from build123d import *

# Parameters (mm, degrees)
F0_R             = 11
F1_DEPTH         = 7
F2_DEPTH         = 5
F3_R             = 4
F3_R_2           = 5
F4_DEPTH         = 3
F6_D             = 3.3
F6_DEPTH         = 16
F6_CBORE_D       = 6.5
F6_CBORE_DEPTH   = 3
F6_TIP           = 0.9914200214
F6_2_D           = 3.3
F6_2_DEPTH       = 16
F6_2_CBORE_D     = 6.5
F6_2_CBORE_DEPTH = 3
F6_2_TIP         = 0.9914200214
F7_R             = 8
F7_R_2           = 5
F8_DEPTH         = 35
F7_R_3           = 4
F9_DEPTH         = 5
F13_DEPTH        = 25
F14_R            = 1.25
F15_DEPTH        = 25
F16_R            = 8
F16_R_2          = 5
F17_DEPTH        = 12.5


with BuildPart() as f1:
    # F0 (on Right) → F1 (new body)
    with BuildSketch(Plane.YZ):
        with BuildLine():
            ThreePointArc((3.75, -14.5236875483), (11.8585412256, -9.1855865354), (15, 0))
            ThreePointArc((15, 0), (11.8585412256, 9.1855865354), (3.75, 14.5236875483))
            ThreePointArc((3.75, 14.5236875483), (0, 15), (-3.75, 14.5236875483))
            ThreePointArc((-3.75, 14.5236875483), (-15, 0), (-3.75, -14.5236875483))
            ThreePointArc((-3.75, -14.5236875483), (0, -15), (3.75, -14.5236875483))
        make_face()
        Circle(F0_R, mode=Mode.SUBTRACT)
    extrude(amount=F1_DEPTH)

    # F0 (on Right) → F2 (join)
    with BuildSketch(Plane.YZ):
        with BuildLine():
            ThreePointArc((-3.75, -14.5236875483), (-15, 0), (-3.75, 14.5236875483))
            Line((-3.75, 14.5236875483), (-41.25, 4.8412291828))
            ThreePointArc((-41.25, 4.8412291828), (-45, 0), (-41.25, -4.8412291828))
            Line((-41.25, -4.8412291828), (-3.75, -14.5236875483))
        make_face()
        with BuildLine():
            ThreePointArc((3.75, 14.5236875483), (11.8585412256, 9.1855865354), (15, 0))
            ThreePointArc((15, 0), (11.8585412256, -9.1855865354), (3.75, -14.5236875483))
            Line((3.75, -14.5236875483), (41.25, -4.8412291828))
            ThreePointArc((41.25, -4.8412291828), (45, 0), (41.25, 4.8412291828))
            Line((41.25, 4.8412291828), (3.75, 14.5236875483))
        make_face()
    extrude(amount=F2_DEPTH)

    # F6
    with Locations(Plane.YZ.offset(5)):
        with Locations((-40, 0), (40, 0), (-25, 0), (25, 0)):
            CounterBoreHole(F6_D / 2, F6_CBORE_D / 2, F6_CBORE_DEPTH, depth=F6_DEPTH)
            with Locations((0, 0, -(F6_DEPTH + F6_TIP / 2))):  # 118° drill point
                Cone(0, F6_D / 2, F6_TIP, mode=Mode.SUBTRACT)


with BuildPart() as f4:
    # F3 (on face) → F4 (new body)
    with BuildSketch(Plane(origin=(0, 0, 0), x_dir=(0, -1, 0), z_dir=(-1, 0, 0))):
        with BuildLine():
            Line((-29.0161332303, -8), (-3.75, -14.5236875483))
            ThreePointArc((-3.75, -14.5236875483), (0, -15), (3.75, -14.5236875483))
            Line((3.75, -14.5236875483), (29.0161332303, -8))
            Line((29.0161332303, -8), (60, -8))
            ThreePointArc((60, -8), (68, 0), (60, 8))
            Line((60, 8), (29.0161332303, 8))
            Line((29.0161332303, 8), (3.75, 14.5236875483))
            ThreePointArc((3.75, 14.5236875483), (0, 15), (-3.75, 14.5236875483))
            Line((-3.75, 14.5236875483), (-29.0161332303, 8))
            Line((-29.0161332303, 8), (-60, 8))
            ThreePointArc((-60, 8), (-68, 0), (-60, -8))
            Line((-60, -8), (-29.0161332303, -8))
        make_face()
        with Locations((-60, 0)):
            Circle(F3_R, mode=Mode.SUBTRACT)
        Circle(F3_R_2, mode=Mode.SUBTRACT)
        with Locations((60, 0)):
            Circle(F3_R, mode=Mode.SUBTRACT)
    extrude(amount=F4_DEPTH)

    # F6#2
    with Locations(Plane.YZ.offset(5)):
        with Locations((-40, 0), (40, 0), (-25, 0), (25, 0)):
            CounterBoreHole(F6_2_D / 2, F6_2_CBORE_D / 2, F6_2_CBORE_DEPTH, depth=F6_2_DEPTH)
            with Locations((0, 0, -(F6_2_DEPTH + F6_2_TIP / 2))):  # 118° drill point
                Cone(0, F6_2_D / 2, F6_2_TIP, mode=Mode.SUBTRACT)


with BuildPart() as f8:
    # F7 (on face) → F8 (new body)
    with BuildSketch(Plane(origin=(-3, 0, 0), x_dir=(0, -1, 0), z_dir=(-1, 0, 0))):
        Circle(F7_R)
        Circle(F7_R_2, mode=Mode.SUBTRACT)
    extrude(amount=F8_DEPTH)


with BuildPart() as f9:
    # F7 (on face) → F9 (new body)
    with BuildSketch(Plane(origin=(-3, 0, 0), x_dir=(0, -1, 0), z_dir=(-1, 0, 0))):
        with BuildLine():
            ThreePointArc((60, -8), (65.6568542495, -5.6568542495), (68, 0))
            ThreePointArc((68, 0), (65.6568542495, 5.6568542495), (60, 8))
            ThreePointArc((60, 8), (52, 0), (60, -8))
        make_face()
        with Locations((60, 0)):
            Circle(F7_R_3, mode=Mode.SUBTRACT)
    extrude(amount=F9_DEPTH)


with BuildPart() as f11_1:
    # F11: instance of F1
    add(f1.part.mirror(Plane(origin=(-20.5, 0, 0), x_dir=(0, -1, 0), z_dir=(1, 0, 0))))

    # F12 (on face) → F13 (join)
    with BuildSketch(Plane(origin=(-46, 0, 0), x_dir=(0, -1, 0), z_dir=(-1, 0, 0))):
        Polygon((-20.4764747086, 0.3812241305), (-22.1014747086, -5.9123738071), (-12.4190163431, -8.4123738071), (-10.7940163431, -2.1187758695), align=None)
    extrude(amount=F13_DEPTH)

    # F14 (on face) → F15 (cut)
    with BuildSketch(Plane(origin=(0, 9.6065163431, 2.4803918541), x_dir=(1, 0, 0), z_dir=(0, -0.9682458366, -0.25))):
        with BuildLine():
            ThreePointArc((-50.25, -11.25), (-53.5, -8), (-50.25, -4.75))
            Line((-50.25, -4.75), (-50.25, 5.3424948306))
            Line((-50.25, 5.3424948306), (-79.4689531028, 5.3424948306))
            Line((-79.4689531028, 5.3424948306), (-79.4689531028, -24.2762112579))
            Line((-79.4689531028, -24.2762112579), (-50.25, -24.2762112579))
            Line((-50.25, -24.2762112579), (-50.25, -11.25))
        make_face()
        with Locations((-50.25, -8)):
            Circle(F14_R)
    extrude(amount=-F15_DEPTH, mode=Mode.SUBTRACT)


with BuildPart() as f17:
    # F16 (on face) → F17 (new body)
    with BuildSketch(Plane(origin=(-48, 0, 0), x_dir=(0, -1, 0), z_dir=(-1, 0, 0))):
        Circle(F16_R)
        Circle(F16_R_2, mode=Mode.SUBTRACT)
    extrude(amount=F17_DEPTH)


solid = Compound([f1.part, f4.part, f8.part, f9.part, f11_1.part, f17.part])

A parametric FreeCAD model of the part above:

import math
import FreeCAD as App
import Part
import Sketcher

doc = App.newDocument("Part")
body = doc.addObject("PartDesign::Body", "Body")

# Sketch on YZ plane
sketch1 = body.newObject("Sketcher::SketchObject", "Sketch")
sketch1.AttachmentSupport = (doc.getObject("YZ_Plane"), [""])
sketch1.MapMode = "FlatFace"
sketch1.addGeometry(Part.ArcOfCircle(Part.Circle(App.Vector(0, 0, 0), App.Vector(0, 0, 1), 15), math.radians(-76), math.radians(0)), False)
sketch1.addGeometry(Part.ArcOfCircle(Part.Circle(App.Vector(0, 0, 0), App.Vector(0, 0, 1), 15), math.radians(0), math.radians(76)), False)
sketch1.addGeometry(Part.ArcOfCircle(Part.Circle(App.Vector(0, 0, 0), App.Vector(0, 0, 1), 15), math.radians(76), math.radians(104)), False)
sketch1.addGeometry(Part.ArcOfCircle(Part.Circle(App.Vector(0, 0, 0), App.Vector(0, 0, 1), 15), math.radians(104), math.radians(256)), False)
sketch1.addGeometry(Part.ArcOfCircle(Part.Circle(App.Vector(0, 0, 0), App.Vector(0, 0, 1), 15), math.radians(-104), math.radians(-76)), False)
sketch1.addGeometry(Part.Circle(App.Vector(0, 0, 0), App.Vector(0, 0, 1), 11), False)
sketch1.addConstraint(Sketcher.Constraint("Tangent", 0, 2, 1, 1))
sketch1.addConstraint(Sketcher.Constraint("Tangent", 1, 2, 2, 1))
sketch1.addConstraint(Sketcher.Constraint("Tangent", 2, 2, 3, 1))
sketch1.addConstraint(Sketcher.Constraint("Tangent", 3, 2, 4, 1))
sketch1.addConstraint(Sketcher.Constraint("Tangent", 4, 2, 0, 1))
sketch1.addConstraint(Sketcher.Constraint("Coincident", 0, 3, -1, 1))
sketch1.addConstraint(Sketcher.Constraint("Coincident", 2, 3, -1, 1))
sketch1.addConstraint(Sketcher.Constraint("Coincident", 5, 3, -1, 1))
sketch1.addConstraint(Sketcher.Constraint("PointOnObject", 0, 2, -1))
sketch1.addConstraint(Sketcher.Constraint("Horizontal", 1, 2, 2, 2))
sketch1.addConstraint(Sketcher.Constraint("Horizontal", 3, 2, 4, 2))
sketch1.addConstraint(Sketcher.Constraint("Vertical", 2, 2, 3, 2))
sketch1.addConstraint(Sketcher.Constraint("Diameter", 5, 22.0))
sketch1.addConstraint(Sketcher.Constraint("Radius", 0, 15.0))
sketch1.addConstraint(Sketcher.Constraint("DistanceX", 2, 2, 1, 2, 7.5))
pad1 = body.newObject("PartDesign::Pad", "Pad")
pad1.Profile = sketch1
pad1.Length = 7

# Sketch on YZ plane
sketch2 = body.newObject("Sketcher::SketchObject", "Sketch001")
sketch2.AttachmentSupport = (doc.getObject("YZ_Plane"), [""])
sketch2.MapMode = "FlatFace"
sketch2.addGeometry(Part.ArcOfCircle(Part.Circle(App.Vector(0, 0, 0), App.Vector(0, 0, 1), 15), math.radians(104), math.radians(256)), False)
sketch2.addGeometry(Part.LineSegment(App.Vector(-4, 15, 0), App.Vector(-41, 5, 0)), False)
sketch2.addGeometry(Part.ArcOfCircle(Part.Circle(App.Vector(-40, 0, 0), App.Vector(0, 0, 1), 5), math.radians(104), math.radians(256)), False)
sketch2.addGeometry(Part.LineSegment(App.Vector(-41, -5, 0), App.Vector(-4, -15, 0)), False)
sketch2.addGeometry(Part.ArcOfCircle(Part.Circle(App.Vector(0, 0, 0), App.Vector(0, 0, 1), 15), math.radians(0), math.radians(76)), False)
sketch2.addGeometry(Part.ArcOfCircle(Part.Circle(App.Vector(0, 0, 0), App.Vector(0, 0, 1), 15), math.radians(-76), math.radians(0)), False)
sketch2.addGeometry(Part.LineSegment(App.Vector(4, -15, 0), App.Vector(41, -5, 0)), False)
sketch2.addGeometry(Part.ArcOfCircle(Part.Circle(App.Vector(40, 0, 0), App.Vector(0, 0, 1), 5), math.radians(-76), math.radians(76)), False)
sketch2.addGeometry(Part.LineSegment(App.Vector(41, 5, 0), App.Vector(4, 15, 0)), False)
sketch2.addConstraint(Sketcher.Constraint("Tangent", 0, 1, 1, 1))
sketch2.addConstraint(Sketcher.Constraint("Tangent", 1, 2, 2, 1))
sketch2.addConstraint(Sketcher.Constraint("Tangent", 2, 2, 3, 1))
sketch2.addConstraint(Sketcher.Constraint("Tangent", 3, 2, 0, 2))
sketch2.addConstraint(Sketcher.Constraint("Tangent", 4, 1, 5, 2))
sketch2.addConstraint(Sketcher.Constraint("Tangent", 5, 1, 6, 1))
sketch2.addConstraint(Sketcher.Constraint("Tangent", 6, 2, 7, 1))
sketch2.addConstraint(Sketcher.Constraint("Tangent", 7, 2, 8, 1))
sketch2.addConstraint(Sketcher.Constraint("Tangent", 8, 2, 4, 2))
sketch2.addConstraint(Sketcher.Constraint("Coincident", 0, 3, -1, 1))
sketch2.addConstraint(Sketcher.Constraint("Coincident", 4, 3, -1, 1))
sketch2.addConstraint(Sketcher.Constraint("Equal", 0, 4))
sketch2.addConstraint(Sketcher.Constraint("Equal", 4, 5))
sketch2.addConstraint(Sketcher.Constraint("Equal", 2, 7))
sketch2.addConstraint(Sketcher.Constraint("Symmetric", 2, 3, 7, 3, -1, 1))
sketch2.addConstraint(Sketcher.Constraint("PointOnObject", 2, 3, -1))
sketch2.addConstraint(Sketcher.Constraint("PointOnObject", 4, 1, -1))
sketch2.addConstraint(Sketcher.Constraint("Radius", 0, 15.0))
sketch2.addConstraint(Sketcher.Constraint("Radius", 2, 5.0))
sketch2.addConstraint(Sketcher.Constraint("DistanceX", 2, 3, -1, 1, 40.0))
pad2 = body.newObject("PartDesign::Pad", "Pad001")
pad2.Profile = sketch2
pad2.Length = 5

# Sketch on YZ plane
sketch3 = body.newObject("Sketcher::SketchObject", "Sketch002")
sketch3.AttachmentSupport = (doc.getObject("YZ_Plane"), [""])
sketch3.MapMode = "FlatFace"
sketch3.AttachmentOffset = App.Placement(App.Vector(0, 0, 5), App.Rotation())
sketch3.addGeometry(Part.Circle(App.Vector(-40, 0, 0), App.Vector(0, 0, 1), 1.6), False)
sketch3.addGeometry(Part.Circle(App.Vector(40, 0, 0), App.Vector(0, 0, 1), 1.6), False)
sketch3.addGeometry(Part.Circle(App.Vector(-25, 0, 0), App.Vector(0, 0, 1), 1.6), False)
sketch3.addGeometry(Part.Circle(App.Vector(25, 0, 0), App.Vector(0, 0, 1), 1.6), False)
sketch3.addConstraint(Sketcher.Constraint("Equal", 0, 1))
sketch3.addConstraint(Sketcher.Constraint("Equal", 1, 2))
sketch3.addConstraint(Sketcher.Constraint("Equal", 2, 3))
sketch3.addConstraint(Sketcher.Constraint("Symmetric", 0, 3, 1, 3, -1, 1))
sketch3.addConstraint(Sketcher.Constraint("Symmetric", 2, 3, 3, 3, -1, 1))
sketch3.addConstraint(Sketcher.Constraint("PointOnObject", 0, 3, -1))
sketch3.addConstraint(Sketcher.Constraint("PointOnObject", 2, 3, -1))
sketch3.addConstraint(Sketcher.Constraint("Diameter", 0, 3.3))
sketch3.addConstraint(Sketcher.Constraint("DistanceX", 0, 3, -1, 1, 40.0))
sketch3.addConstraint(Sketcher.Constraint("DistanceX", 2, 3, -1, 1, 25.0))
doc.recompute()
hole = body.newObject("PartDesign::Hole", "Hole")
hole.Profile = sketch3
hole.ThreadType = "None"
hole.Diameter = 3.3
hole.DepthType = "Dimension"
hole.Depth = 16
hole.DrillPoint = "Angled"
hole.DrillPointAngle = 118
hole.HoleCutType = "Counterbore"
hole.HoleCutDiameter = 6.5
hole.HoleCutDepth = 3
body2 = doc.addObject("PartDesign::Body", "Body001")

# Sketch on YZ plane
sketch4 = body2.newObject("Sketcher::SketchObject", "Sketch003")
sketch4.AttachmentSupport = (doc.getObject("YZ_Plane001"), [""])
sketch4.MapMode = "FlatFace"
sketch4.addGeometry(Part.LineSegment(App.Vector(29, -8, 0), App.Vector(3.8, -14.5, 0)), False)
sketch4.addGeometry(Part.ArcOfCircle(Part.Circle(App.Vector(0, 0, 0), App.Vector(0, 0, 1), 15), math.radians(-104), math.radians(-76)), False)
sketch4.addGeometry(Part.LineSegment(App.Vector(-3.8, -14.5, 0), App.Vector(-29, -8, 0)), False)
sketch4.addGeometry(Part.LineSegment(App.Vector(-29, -8, 0), App.Vector(-60, -8, 0)), False)
sketch4.addGeometry(Part.ArcOfCircle(Part.Circle(App.Vector(-60, 0, 0), App.Vector(0, 0, 1), 8), math.radians(90), math.radians(270)), False)
sketch4.addGeometry(Part.LineSegment(App.Vector(-60, 8, 0), App.Vector(-29, 8, 0)), False)
sketch4.addGeometry(Part.LineSegment(App.Vector(-29, 8, 0), App.Vector(-3.8, 14.5, 0)), False)
sketch4.addGeometry(Part.ArcOfCircle(Part.Circle(App.Vector(0, 0, 0), App.Vector(0, 0, 1), 15), math.radians(76), math.radians(104)), False)
sketch4.addGeometry(Part.LineSegment(App.Vector(3.8, 14.5, 0), App.Vector(29, 8, 0)), False)
sketch4.addGeometry(Part.LineSegment(App.Vector(29, 8, 0), App.Vector(60, 8, 0)), False)
sketch4.addGeometry(Part.ArcOfCircle(Part.Circle(App.Vector(60, 0, 0), App.Vector(0, 0, 1), 8), math.radians(-90), math.radians(90)), False)
sketch4.addGeometry(Part.LineSegment(App.Vector(60, -8, 0), App.Vector(29, -8, 0)), False)
sketch4.addGeometry(Part.Circle(App.Vector(60, 0, 0), App.Vector(0, 0, 1), 4), False)
sketch4.addGeometry(Part.Circle(App.Vector(0, 0, 0), App.Vector(0, 0, 1), 5), False)
sketch4.addGeometry(Part.Circle(App.Vector(-60, 0, 0), App.Vector(0, 0, 1), 4), False)
sketch4.addConstraint(Sketcher.Constraint("Tangent", 0, 2, 1, 2))
sketch4.addConstraint(Sketcher.Constraint("Tangent", 1, 1, 2, 1))
sketch4.addConstraint(Sketcher.Constraint("Coincident", 2, 2, 3, 1))
sketch4.addConstraint(Sketcher.Constraint("Tangent", 3, 2, 4, 2))
sketch4.addConstraint(Sketcher.Constraint("Tangent", 4, 1, 5, 1))
sketch4.addConstraint(Sketcher.Constraint("Coincident", 5, 2, 6, 1))
sketch4.addConstraint(Sketcher.Constraint("Tangent", 6, 2, 7, 2))
sketch4.addConstraint(Sketcher.Constraint("Tangent", 7, 1, 8, 1))
sketch4.addConstraint(Sketcher.Constraint("Coincident", 8, 2, 9, 1))
sketch4.addConstraint(Sketcher.Constraint("Tangent", 9, 2, 10, 2))
sketch4.addConstraint(Sketcher.Constraint("Tangent", 10, 1, 11, 1))
sketch4.addConstraint(Sketcher.Constraint("Coincident", 11, 2, 0, 1))
sketch4.addConstraint(Sketcher.Constraint("Horizontal", 3))
sketch4.addConstraint(Sketcher.Constraint("Horizontal", 5))
sketch4.addConstraint(Sketcher.Constraint("Horizontal", 9))
sketch4.addConstraint(Sketcher.Constraint("Horizontal", 11))
sketch4.addConstraint(Sketcher.Constraint("Coincident", 1, 3, -1, 1))
sketch4.addConstraint(Sketcher.Constraint("Coincident", 7, 3, -1, 1))
sketch4.addConstraint(Sketcher.Constraint("Coincident", 13, 3, -1, 1))
sketch4.addConstraint(Sketcher.Constraint("Coincident", 12, 3, 10, 3))
sketch4.addConstraint(Sketcher.Constraint("Coincident", 14, 3, 4, 3))
sketch4.addConstraint(Sketcher.Constraint("Equal", 1, 7))
sketch4.addConstraint(Sketcher.Constraint("Equal", 4, 10))
sketch4.addConstraint(Sketcher.Constraint("Equal", 12, 14))
sketch4.addConstraint(Sketcher.Constraint("Symmetric", 4, 3, 10, 3, -1, 1))
sketch4.addConstraint(Sketcher.Constraint("Symmetric", 5, 2, 8, 2, -2))
sketch4.addConstraint(Sketcher.Constraint("Parallel", 0, 6))
sketch4.addConstraint(Sketcher.Constraint("Parallel", 2, 8))
sketch4.addConstraint(Sketcher.Constraint("Diameter", 12, 8.0))
sketch4.addConstraint(Sketcher.Constraint("Diameter", 13, 10.0))
sketch4.addConstraint(Sketcher.Constraint("Radius", 1, 15.0))
sketch4.addConstraint(Sketcher.Constraint("Radius", 4, 8.0))
sketch4.addConstraint(Sketcher.Constraint("DistanceX", 4, 3, -1, 1, 60.0))
sketch4.addConstraint(Sketcher.Constraint("DistanceX", 1, 1, 0, 2, 7.5))
pad3 = body2.newObject("PartDesign::Pad", "Pad002")
pad3.Profile = sketch4
pad3.Length = 3
pad3.Reversed = True

# Sketch on YZ plane
sketch5 = body2.newObject("Sketcher::SketchObject", "Sketch004")
sketch5.AttachmentSupport = (doc.getObject("YZ_Plane001"), [""])
sketch5.MapMode = "FlatFace"
sketch5.AttachmentOffset = App.Placement(App.Vector(0, 0, 5), App.Rotation())
sketch5.addGeometry(Part.Circle(App.Vector(-40, 0, 0), App.Vector(0, 0, 1), 1.6), False)
sketch5.addGeometry(Part.Circle(App.Vector(40, 0, 0), App.Vector(0, 0, 1), 1.6), False)
sketch5.addGeometry(Part.Circle(App.Vector(-25, 0, 0), App.Vector(0, 0, 1), 1.6), False)
sketch5.addGeometry(Part.Circle(App.Vector(25, 0, 0), App.Vector(0, 0, 1), 1.6), False)
sketch5.addConstraint(Sketcher.Constraint("Equal", 0, 1))
sketch5.addConstraint(Sketcher.Constraint("Equal", 1, 2))
sketch5.addConstraint(Sketcher.Constraint("Equal", 2, 3))
sketch5.addConstraint(Sketcher.Constraint("Symmetric", 0, 3, 1, 3, -1, 1))
sketch5.addConstraint(Sketcher.Constraint("Symmetric", 2, 3, 3, 3, -1, 1))
sketch5.addConstraint(Sketcher.Constraint("PointOnObject", 0, 3, -1))
sketch5.addConstraint(Sketcher.Constraint("PointOnObject", 2, 3, -1))
sketch5.addConstraint(Sketcher.Constraint("Diameter", 0, 3.3))
sketch5.addConstraint(Sketcher.Constraint("DistanceX", 0, 3, -1, 1, 40.0))
sketch5.addConstraint(Sketcher.Constraint("DistanceX", 2, 3, -1, 1, 25.0))
doc.recompute()
hole2 = body2.newObject("PartDesign::Hole", "Hole001")
hole2.Profile = sketch5
hole2.ThreadType = "None"
hole2.Diameter = 3.3
hole2.DepthType = "Dimension"
hole2.Depth = 16
hole2.DrillPoint = "Angled"
hole2.DrillPointAngle = 118
hole2.HoleCutType = "Counterbore"
hole2.HoleCutDiameter = 6.5
hole2.HoleCutDepth = 3
body3 = doc.addObject("PartDesign::Body", "Body002")

# Sketch on YZ plane
sketch6 = body3.newObject("Sketcher::SketchObject", "Sketch005")
sketch6.AttachmentSupport = (doc.getObject("YZ_Plane002"), [""])
sketch6.MapMode = "FlatFace"
sketch6.AttachmentOffset = App.Placement(App.Vector(0, 0, -3), App.Rotation())
sketch6.addGeometry(Part.Circle(App.Vector(0, 0, 0), App.Vector(0, 0, 1), 8), False)
sketch6.addGeometry(Part.Circle(App.Vector(0, 0, 0), App.Vector(0, 0, 1), 5), False)
sketch6.addConstraint(Sketcher.Constraint("Coincident", 0, 3, -1, 1))
sketch6.addConstraint(Sketcher.Constraint("Coincident", 1, 3, -1, 1))
sketch6.addConstraint(Sketcher.Constraint("Diameter", 0, 16.0))
sketch6.addConstraint(Sketcher.Constraint("Diameter", 1, 10.0))
pad4 = body3.newObject("PartDesign::Pad", "Pad003")
pad4.Profile = sketch6
pad4.Length = 35
pad4.Reversed = True
body4 = doc.addObject("PartDesign::Body", "Body003")

# Sketch on YZ plane
sketch7 = body4.newObject("Sketcher::SketchObject", "Sketch006")
sketch7.AttachmentSupport = (doc.getObject("YZ_Plane003"), [""])
sketch7.MapMode = "FlatFace"
sketch7.AttachmentOffset = App.Placement(App.Vector(0, 0, -3), App.Rotation())
sketch7.addGeometry(Part.ArcOfCircle(Part.Circle(App.Vector(-60, 0, 0), App.Vector(0, 0, 1), 8), math.radians(180), math.radians(270)), False)
sketch7.addGeometry(Part.ArcOfCircle(Part.Circle(App.Vector(-60, 0, 0), App.Vector(0, 0, 1), 8), math.radians(90), math.radians(180)), False)
sketch7.addGeometry(Part.ArcOfCircle(Part.Circle(App.Vector(-60, 0, 0), App.Vector(0, 0, 1), 8), math.radians(-90), math.radians(90)), False)
sketch7.addGeometry(Part.Circle(App.Vector(-60, 0, 0), App.Vector(0, 0, 1), 4), False)
sketch7.addConstraint(Sketcher.Constraint("Tangent", 0, 1, 1, 2))
sketch7.addConstraint(Sketcher.Constraint("Tangent", 1, 1, 2, 2))
sketch7.addConstraint(Sketcher.Constraint("Tangent", 2, 1, 0, 2))
sketch7.addConstraint(Sketcher.Constraint("Coincident", 3, 3, 0, 3))
sketch7.addConstraint(Sketcher.Constraint("Symmetric", 1, 1, 2, 1, -1))
sketch7.addConstraint(Sketcher.Constraint("PointOnObject", 0, 1, -1))
sketch7.addConstraint(Sketcher.Constraint("Vertical", 3, 3, 1, 1))
sketch7.addConstraint(Sketcher.Constraint("Diameter", 3, 8.0))
sketch7.addConstraint(Sketcher.Constraint("Radius", 0, 8.0))
sketch7.addConstraint(Sketcher.Constraint("DistanceX", 0, 3, -1, 1, 60.0))
pad5 = body4.newObject("PartDesign::Pad", "Pad004")
pad5.Profile = sketch7
pad5.Length = 5
pad5.Reversed = True
body5 = doc.addObject("PartDesign::Body", "Body004")
doc.recompute()

mirroring = doc.addObject("Part::Mirroring", "Mirroring")
mirroring.Source = body
mirroring.Base = App.Vector(-20.5, 0, 0)
mirroring.Normal = App.Vector(1, 0, 0)
body5.BaseFeature = mirroring
doc.recompute()

# Sketch on YZ plane
sketch8 = body5.newObject("Sketcher::SketchObject", "Sketch007")
sketch8.AttachmentSupport = (doc.getObject("YZ_Plane004"), [""])
sketch8.MapMode = "FlatFace"
sketch8.AttachmentOffset = App.Placement(App.Vector(0, 0, -46), App.Rotation())
sketch8.addGeometry(Part.LineSegment(App.Vector(20, 0, 0), App.Vector(22, -6, 0)), False)
sketch8.addGeometry(Part.LineSegment(App.Vector(22, -6, 0), App.Vector(12, -8, 0)), False)
sketch8.addGeometry(Part.LineSegment(App.Vector(12, -8, 0), App.Vector(11, -2, 0)), False)
sketch8.addGeometry(Part.LineSegment(App.Vector(11, -2, 0), App.Vector(20, 0, 0)), False)
sketch8.addConstraint(Sketcher.Constraint("Coincident", 0, 2, 1, 1))
sketch8.addConstraint(Sketcher.Constraint("Coincident", 1, 2, 2, 1))
sketch8.addConstraint(Sketcher.Constraint("Coincident", 2, 2, 3, 1))
sketch8.addConstraint(Sketcher.Constraint("Coincident", 3, 2, 0, 1))
sketch8.addConstraint(Sketcher.Constraint("Perpendicular", 0, 1))
sketch8.addConstraint(Sketcher.Constraint("Perpendicular", 1, 2))
sketch8.addConstraint(Sketcher.Constraint("Perpendicular", 2, 3))
sketch8.addConstraint(Sketcher.Constraint("Distance", 1, 10.0))
sketch8.addConstraint(Sketcher.Constraint("Distance", 0, 6.5))
sketch8.addConstraint(Sketcher.Constraint("DistanceY", 1, 2, 0, 2, 2.5))
sketch8.addConstraint(Sketcher.Constraint("DistanceX", -1, 1, 0, 2, 22.101475))
sketch8.addConstraint(Sketcher.Constraint("DistanceY", 0, 2, -1, 1, 5.912374))
pad6 = body5.newObject("PartDesign::Pad", "Pad005")
pad6.Profile = sketch8
pad6.Length = 25
pad6.Reversed = True

# Sketch on an angled plane
sketch9 = body5.newObject("Sketcher::SketchObject", "Sketch008")
sketch9.Placement = App.Placement(App.Vector(0, 9.606516, 2.480392), App.Rotation(App.Vector(1, 0, 0), App.Vector(0, -0.25, 0.968245837), App.Vector(0, -0.968245837, -0.25), "ZXY"))
sketch9.addGeometry(Part.ArcOfCircle(Part.Circle(App.Vector(-50.2, -8, 0), App.Vector(0, 0, 1), 3.2), math.radians(90), math.radians(270)), False)
sketch9.addGeometry(Part.LineSegment(App.Vector(-50.2, -4.8, 0), App.Vector(-50.2, 5.3, 0)), False)
sketch9.addGeometry(Part.LineSegment(App.Vector(-50.2, 5.3, 0), App.Vector(-79.5, 5.3, 0)), False)
sketch9.addGeometry(Part.LineSegment(App.Vector(-79.5, 5.3, 0), App.Vector(-79.5, -24.3, 0)), False)
sketch9.addGeometry(Part.LineSegment(App.Vector(-79.5, -24.3, 0), App.Vector(-50.2, -24.3, 0)), False)
sketch9.addGeometry(Part.LineSegment(App.Vector(-50.2, -24.3, 0), App.Vector(-50.2, -11.3, 0)), False)
sketch9.addGeometry(Part.Circle(App.Vector(-50.2, -8, 0), App.Vector(0, 0, 1), 1.2), False)
sketch9.addConstraint(Sketcher.Constraint("Coincident", 0, 1, 1, 1))
sketch9.addConstraint(Sketcher.Constraint("Coincident", 1, 2, 2, 1))
sketch9.addConstraint(Sketcher.Constraint("Coincident", 2, 2, 3, 1))
sketch9.addConstraint(Sketcher.Constraint("Coincident", 3, 2, 4, 1))
sketch9.addConstraint(Sketcher.Constraint("Coincident", 4, 2, 5, 1))
sketch9.addConstraint(Sketcher.Constraint("Coincident", 5, 2, 0, 2))
sketch9.addConstraint(Sketcher.Constraint("Vertical", 1))
sketch9.addConstraint(Sketcher.Constraint("Horizontal", 2))
sketch9.addConstraint(Sketcher.Constraint("Vertical", 3))
sketch9.addConstraint(Sketcher.Constraint("Horizontal", 4))
sketch9.addConstraint(Sketcher.Constraint("Vertical", 5))
sketch9.addConstraint(Sketcher.Constraint("Coincident", 6, 3, 0, 3))
sketch9.addConstraint(Sketcher.Constraint("Vertical", 6, 3, 0, 1))
sketch9.addConstraint(Sketcher.Constraint("Vertical", 1, 2, 4, 2))
sketch9.addConstraint(Sketcher.Constraint("Diameter", 6, 2.5))
sketch9.addConstraint(Sketcher.Constraint("Radius", 0, 3.25))
sketch9.addConstraint(Sketcher.Constraint("DistanceY", 0, 3, -1, 1, 8.0))
sketch9.addConstraint(Sketcher.Constraint("DistanceX", 0, 3, -1, 1, 50.25))
sketch9.addConstraint(Sketcher.Constraint("DistanceY", 5, 1, 5, 2, 13.026211))
sketch9.addConstraint(Sketcher.Constraint("DistanceX", 2, 2, 2, 1, 29.218953))
sketch9.addConstraint(Sketcher.Constraint("DistanceY", 1, 1, 1, 2, 10.092495))
pocket1 = body5.newObject("PartDesign::Pocket", "Pocket")
pocket1.Profile = sketch9
pocket1.Length = 25
body6 = doc.addObject("PartDesign::Body", "Body005")

# Sketch on YZ plane
sketch10 = body6.newObject("Sketcher::SketchObject", "Sketch009")
sketch10.AttachmentSupport = (doc.getObject("YZ_Plane005"), [""])
sketch10.MapMode = "FlatFace"
sketch10.AttachmentOffset = App.Placement(App.Vector(0, 0, -48), App.Rotation())
sketch10.addGeometry(Part.Circle(App.Vector(0, 0, 0), App.Vector(0, 0, 1), 8), False)
sketch10.addGeometry(Part.Circle(App.Vector(0, 0, 0), App.Vector(0, 0, 1), 5), False)
sketch10.addConstraint(Sketcher.Constraint("Coincident", 0, 3, -1, 1))
sketch10.addConstraint(Sketcher.Constraint("Coincident", 1, 3, -1, 1))
sketch10.addConstraint(Sketcher.Constraint("Diameter", 0, 16.0))
sketch10.addConstraint(Sketcher.Constraint("Diameter", 1, 10.0))
pad7 = body6.newObject("PartDesign::Pad", "Pad006")
pad7.Profile = sketch10
pad7.Length = 12.5
pad7.Reversed = True
mirroring.Visibility = False

doc.recompute()
